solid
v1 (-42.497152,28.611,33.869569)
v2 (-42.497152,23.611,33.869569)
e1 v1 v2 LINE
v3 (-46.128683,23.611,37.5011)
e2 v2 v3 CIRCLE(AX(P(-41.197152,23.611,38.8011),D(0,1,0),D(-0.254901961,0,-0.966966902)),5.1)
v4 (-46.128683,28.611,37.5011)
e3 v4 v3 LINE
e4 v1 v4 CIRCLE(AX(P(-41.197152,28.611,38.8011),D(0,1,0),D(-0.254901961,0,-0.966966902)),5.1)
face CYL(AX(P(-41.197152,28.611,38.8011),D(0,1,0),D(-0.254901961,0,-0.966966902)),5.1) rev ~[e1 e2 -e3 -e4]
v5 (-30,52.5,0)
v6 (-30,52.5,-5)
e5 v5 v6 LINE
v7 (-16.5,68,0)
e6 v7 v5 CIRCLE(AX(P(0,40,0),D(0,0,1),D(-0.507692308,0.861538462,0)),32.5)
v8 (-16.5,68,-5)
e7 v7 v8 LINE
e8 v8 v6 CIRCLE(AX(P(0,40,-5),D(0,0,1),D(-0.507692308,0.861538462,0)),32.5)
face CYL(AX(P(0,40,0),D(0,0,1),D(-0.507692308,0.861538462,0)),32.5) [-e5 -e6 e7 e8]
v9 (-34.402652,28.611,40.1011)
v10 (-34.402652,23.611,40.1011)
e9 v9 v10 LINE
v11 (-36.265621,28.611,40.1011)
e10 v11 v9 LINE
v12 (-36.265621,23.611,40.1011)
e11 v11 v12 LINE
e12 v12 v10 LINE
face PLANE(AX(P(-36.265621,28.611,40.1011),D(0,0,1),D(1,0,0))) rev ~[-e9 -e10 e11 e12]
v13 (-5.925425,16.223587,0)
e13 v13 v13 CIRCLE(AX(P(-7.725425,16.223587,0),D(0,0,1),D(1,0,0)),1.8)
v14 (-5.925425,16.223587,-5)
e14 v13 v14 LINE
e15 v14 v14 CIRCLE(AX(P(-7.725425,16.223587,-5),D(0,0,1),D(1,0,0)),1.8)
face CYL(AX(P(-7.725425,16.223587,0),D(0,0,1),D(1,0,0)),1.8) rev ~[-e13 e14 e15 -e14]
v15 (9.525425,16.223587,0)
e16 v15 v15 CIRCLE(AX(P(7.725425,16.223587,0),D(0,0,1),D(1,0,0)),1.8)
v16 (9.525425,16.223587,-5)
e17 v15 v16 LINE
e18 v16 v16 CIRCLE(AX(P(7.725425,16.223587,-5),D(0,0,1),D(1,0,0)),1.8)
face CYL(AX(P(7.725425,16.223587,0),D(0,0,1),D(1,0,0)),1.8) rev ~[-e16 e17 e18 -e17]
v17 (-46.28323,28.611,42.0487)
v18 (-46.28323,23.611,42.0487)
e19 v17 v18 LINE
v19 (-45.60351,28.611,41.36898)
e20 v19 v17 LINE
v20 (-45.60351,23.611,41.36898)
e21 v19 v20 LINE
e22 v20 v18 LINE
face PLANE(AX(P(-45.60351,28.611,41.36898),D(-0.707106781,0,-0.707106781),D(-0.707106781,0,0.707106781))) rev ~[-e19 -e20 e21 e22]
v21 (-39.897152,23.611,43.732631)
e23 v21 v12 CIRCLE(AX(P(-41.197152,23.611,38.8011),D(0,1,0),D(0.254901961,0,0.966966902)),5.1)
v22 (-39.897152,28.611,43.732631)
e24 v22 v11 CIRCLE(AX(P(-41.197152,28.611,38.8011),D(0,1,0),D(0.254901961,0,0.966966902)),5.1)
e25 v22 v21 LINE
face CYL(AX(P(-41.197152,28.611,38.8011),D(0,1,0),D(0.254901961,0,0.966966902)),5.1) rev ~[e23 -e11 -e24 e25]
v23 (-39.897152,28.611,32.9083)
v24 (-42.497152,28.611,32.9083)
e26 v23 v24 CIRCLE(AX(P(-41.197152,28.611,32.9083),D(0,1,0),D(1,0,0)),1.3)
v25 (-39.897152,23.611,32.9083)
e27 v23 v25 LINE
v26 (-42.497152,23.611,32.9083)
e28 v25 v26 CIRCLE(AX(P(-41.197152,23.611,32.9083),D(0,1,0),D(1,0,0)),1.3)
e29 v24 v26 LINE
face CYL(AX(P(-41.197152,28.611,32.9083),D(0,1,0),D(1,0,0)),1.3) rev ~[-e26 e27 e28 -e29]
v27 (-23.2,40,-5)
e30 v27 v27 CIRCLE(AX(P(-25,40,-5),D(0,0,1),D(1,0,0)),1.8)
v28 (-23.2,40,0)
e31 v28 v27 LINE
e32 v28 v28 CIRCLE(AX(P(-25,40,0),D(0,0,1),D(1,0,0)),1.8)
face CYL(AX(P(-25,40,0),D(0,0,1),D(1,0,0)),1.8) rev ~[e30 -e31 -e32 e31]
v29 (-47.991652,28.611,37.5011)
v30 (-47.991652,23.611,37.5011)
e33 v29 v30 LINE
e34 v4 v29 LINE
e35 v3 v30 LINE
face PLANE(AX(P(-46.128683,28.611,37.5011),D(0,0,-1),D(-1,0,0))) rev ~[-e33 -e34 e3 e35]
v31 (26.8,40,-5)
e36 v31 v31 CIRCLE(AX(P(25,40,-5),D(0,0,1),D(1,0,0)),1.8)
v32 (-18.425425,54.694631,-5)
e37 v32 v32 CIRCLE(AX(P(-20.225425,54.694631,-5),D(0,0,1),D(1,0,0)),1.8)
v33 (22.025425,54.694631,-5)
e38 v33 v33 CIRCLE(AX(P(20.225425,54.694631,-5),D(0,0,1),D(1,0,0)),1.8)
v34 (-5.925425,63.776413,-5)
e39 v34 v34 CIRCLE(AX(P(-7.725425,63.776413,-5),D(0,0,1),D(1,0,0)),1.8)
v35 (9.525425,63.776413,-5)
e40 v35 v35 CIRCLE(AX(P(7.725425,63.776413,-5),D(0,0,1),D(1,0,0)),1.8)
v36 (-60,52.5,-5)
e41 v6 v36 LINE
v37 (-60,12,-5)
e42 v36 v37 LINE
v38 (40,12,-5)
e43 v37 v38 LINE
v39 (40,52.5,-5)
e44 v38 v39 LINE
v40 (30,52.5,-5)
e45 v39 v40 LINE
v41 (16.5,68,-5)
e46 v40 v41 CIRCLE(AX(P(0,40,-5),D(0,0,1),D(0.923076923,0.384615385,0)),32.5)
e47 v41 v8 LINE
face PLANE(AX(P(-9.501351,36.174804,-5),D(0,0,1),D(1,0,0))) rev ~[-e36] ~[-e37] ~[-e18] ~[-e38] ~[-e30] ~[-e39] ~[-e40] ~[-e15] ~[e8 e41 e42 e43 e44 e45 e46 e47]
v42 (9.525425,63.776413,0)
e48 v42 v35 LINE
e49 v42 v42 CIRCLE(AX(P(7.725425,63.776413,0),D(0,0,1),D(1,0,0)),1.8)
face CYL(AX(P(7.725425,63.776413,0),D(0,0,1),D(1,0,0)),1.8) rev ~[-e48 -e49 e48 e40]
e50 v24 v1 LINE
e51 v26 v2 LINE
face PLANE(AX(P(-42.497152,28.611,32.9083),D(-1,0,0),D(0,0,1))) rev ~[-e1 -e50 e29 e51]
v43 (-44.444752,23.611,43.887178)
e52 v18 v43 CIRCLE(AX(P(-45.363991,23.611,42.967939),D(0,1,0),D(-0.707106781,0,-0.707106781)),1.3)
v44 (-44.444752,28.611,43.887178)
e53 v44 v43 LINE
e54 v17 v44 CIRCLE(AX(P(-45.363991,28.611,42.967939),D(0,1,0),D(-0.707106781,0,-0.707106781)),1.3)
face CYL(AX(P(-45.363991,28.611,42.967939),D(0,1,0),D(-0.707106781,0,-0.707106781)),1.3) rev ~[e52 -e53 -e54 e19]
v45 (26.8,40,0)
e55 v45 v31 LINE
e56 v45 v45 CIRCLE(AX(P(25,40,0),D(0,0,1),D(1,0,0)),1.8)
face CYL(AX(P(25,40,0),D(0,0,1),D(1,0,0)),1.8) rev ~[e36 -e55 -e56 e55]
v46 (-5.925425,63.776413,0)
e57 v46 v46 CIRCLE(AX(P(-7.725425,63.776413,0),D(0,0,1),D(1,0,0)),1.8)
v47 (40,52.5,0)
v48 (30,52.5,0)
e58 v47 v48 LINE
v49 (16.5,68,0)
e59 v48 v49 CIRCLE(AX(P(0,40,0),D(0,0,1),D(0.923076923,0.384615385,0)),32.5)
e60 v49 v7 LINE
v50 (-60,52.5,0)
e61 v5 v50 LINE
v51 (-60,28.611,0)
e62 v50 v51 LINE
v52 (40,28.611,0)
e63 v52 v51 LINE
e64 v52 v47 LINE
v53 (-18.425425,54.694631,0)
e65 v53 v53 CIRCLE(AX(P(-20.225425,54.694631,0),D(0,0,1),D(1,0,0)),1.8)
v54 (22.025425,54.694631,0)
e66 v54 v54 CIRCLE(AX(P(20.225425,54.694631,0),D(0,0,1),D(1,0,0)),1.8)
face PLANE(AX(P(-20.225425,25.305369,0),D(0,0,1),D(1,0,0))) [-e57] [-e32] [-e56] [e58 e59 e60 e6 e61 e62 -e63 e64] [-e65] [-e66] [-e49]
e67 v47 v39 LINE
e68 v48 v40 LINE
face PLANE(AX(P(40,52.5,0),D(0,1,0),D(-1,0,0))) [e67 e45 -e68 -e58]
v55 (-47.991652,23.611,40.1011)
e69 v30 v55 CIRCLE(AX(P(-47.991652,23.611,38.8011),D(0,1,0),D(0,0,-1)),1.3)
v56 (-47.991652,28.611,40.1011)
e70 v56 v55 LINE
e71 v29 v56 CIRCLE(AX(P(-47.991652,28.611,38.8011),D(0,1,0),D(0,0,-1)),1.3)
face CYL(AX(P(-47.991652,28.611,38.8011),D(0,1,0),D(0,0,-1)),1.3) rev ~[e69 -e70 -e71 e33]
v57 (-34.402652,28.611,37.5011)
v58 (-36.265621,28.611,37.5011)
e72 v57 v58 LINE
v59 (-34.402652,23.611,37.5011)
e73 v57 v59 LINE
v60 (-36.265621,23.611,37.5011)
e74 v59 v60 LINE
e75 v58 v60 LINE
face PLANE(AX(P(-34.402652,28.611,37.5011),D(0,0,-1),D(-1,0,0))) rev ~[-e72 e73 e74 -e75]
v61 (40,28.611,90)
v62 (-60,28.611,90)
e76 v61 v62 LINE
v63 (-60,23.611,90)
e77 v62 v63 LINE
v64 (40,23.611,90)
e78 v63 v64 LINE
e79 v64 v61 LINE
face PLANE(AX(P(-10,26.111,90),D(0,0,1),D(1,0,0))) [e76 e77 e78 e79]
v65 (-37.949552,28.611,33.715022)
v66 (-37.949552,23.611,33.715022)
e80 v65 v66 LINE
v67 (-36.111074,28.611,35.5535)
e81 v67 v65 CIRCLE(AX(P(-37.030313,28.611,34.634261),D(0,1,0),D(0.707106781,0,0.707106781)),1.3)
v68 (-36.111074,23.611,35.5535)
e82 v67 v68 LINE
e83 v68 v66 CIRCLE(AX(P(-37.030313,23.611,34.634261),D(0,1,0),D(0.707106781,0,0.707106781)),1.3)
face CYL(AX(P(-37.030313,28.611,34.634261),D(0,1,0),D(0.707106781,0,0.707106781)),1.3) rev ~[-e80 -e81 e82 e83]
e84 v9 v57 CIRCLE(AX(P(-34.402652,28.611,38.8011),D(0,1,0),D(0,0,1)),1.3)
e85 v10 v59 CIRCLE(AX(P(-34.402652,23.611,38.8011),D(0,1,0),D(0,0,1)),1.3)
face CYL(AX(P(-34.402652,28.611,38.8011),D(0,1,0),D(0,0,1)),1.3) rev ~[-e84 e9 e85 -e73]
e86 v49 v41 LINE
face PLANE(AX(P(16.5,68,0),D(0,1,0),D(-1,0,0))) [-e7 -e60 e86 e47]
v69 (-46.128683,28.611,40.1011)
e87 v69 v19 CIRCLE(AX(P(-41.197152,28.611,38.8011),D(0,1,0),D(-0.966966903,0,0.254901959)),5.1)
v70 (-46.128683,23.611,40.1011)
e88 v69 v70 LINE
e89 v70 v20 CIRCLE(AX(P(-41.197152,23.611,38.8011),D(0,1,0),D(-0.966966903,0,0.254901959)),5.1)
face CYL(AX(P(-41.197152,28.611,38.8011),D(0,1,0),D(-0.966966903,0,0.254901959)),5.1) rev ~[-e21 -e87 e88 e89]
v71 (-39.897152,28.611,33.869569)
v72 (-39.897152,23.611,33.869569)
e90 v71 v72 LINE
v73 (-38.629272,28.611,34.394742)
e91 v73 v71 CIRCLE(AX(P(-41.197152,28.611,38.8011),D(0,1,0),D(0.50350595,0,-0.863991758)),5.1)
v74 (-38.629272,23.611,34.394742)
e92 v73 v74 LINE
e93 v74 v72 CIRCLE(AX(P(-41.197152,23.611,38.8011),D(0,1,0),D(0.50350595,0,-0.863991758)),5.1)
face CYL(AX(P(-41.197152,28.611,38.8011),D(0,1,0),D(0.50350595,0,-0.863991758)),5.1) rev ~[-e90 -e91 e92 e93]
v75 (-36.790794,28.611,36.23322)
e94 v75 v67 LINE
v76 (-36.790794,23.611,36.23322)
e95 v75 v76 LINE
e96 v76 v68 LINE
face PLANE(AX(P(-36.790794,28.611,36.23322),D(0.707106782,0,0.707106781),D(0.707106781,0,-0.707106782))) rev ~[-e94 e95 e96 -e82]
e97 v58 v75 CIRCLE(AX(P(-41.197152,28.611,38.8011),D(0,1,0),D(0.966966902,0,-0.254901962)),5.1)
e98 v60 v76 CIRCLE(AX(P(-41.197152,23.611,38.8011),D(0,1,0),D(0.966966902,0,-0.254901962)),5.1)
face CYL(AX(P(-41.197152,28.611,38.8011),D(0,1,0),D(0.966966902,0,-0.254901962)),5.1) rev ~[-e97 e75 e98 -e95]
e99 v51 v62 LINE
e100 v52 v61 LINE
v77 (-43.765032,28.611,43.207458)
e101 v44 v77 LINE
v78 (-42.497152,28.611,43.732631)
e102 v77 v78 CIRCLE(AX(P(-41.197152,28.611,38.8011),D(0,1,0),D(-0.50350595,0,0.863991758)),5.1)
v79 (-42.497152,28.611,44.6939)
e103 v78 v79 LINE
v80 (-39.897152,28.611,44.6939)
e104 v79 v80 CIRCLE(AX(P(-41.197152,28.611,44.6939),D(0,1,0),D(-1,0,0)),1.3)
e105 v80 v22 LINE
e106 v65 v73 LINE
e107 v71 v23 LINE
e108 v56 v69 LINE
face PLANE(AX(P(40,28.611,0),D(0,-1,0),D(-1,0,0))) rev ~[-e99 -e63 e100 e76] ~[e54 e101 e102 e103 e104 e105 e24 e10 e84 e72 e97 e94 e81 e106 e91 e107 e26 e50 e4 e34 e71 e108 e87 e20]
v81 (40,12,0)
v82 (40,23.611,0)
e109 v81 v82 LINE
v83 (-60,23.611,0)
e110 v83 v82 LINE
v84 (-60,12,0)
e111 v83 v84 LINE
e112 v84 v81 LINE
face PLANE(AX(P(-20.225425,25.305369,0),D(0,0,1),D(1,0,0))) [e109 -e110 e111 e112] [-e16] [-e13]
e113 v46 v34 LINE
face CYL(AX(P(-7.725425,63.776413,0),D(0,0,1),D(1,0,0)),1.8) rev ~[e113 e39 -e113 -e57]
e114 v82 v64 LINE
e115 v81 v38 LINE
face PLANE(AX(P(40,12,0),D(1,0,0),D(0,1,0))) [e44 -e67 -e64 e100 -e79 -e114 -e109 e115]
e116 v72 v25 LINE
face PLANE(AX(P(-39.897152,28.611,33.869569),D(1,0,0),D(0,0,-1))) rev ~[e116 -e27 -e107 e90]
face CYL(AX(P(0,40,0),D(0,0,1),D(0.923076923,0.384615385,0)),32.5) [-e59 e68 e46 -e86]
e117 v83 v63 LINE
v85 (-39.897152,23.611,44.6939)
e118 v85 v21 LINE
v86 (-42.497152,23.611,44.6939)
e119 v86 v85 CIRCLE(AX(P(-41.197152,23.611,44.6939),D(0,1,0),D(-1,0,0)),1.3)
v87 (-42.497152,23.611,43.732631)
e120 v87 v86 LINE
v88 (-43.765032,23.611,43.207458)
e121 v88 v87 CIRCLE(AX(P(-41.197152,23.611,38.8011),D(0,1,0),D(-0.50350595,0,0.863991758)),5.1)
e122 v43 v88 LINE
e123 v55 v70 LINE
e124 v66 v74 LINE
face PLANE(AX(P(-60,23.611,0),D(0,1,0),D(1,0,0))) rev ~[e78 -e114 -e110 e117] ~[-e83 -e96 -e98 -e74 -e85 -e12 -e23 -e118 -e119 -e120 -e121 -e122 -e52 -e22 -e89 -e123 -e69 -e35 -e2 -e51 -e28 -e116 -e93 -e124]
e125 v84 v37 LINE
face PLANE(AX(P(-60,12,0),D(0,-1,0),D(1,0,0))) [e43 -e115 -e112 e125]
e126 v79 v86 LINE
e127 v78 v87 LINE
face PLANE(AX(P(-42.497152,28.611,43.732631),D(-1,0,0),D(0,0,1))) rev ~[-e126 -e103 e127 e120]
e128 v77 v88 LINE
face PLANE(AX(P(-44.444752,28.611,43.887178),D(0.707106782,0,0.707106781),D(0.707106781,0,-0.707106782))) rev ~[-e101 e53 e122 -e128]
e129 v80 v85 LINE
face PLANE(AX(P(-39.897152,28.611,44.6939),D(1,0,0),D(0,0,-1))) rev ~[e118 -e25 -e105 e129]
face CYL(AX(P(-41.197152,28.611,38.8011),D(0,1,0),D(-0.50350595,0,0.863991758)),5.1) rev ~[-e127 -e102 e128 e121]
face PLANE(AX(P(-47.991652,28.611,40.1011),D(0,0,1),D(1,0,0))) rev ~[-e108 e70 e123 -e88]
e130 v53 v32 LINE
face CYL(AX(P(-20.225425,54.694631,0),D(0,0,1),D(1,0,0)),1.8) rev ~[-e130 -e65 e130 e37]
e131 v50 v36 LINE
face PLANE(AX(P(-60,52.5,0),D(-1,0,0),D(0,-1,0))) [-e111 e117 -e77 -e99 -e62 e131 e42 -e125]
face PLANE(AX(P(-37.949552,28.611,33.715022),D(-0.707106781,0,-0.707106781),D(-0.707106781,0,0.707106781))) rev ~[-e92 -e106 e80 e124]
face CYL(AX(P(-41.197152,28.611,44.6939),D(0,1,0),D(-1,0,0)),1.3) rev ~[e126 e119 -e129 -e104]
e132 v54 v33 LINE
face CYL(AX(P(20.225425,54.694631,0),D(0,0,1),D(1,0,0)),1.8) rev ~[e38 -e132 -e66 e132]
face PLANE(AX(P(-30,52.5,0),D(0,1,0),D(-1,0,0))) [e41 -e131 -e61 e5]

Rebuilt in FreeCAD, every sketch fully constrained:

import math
import FreeCAD as App
import Part
import Sketcher
Q = App.Units.Quantity


def add_polygon(sketch, points):
    """Adds a closed chain of lines whose ends are joined by coincident constraints."""
    first, n = sketch.GeometryCount, len(points)
    for a, b in zip(points, points[1:] + points[:1]):
        sketch.addGeometry(Part.LineSegment(App.Vector(*a, 0), App.Vector(*b, 0)), False)
    for i in range(n):
        sketch.addConstraint(Sketcher.Constraint("Coincident", first + i, 2, first + (i + 1) % n, 1))

doc = App.newDocument("Part")
body = doc.addObject("PartDesign::Body", "Body")

# Sketch on XY plane
sketch1 = body.newObject("Sketcher::SketchObject", "Sketch")
sketch1.AttachmentSupport = (doc.getObject("XY_Plane"), [""])
sketch1.MapMode = "FlatFace"
sketch1.addGeometry(Part.ArcOfCircle(Part.Circle(App.Vector(0, 40, 0), App.Vector(0, 0, 1), 32.5), math.radians(22.619865), math.radians(59.489763)), False)
sketch1.addGeometry(Part.LineSegment(App.Vector(16.5, 68, 0), App.Vector(-16.5, 68, 0)), False)
sketch1.addGeometry(Part.ArcOfCircle(Part.Circle(App.Vector(0, 40, 0), App.Vector(0, 0, 1), 32.5), math.radians(120.510237), math.radians(157.380135)), False)
sketch1.addGeometry(Part.LineSegment(App.Vector(-30, 52.5, 0), App.Vector(-60, 52.5, 0)), False)
sketch1.addGeometry(Part.LineSegment(App.Vector(-60, 52.5, 0), App.Vector(-60, 12, 0)), False)
sketch1.addGeometry(Part.LineSegment(App.Vector(-60, 12, 0), App.Vector(40, 12, 0)), False)
sketch1.addGeometry(Part.LineSegment(App.Vector(40, 12, 0), App.Vector(40, 52.5, 0)), False)
sketch1.addGeometry(Part.LineSegment(App.Vector(40, 52.5, 0), App.Vector(30, 52.5, 0)), False)
sketch1.addGeometry(Part.Circle(App.Vector(-20.225425, 25.305369, 0), App.Vector(0, 0, 1), 1.8), False)
sketch1.addGeometry(Part.Circle(App.Vector(-7.725425, 16.223587, 0), App.Vector(0, 0, 1), 1.8), False)
sketch1.addGeometry(Part.Circle(App.Vector(7.725425, 16.223587, 0), App.Vector(0, 0, 1), 1.8), False)
sketch1.addGeometry(Part.Circle(App.Vector(20.225425, 25.305369, 0), App.Vector(0, 0, 1), 1.8), False)
sketch1.addGeometry(Part.Circle(App.Vector(-25, 40, 0), App.Vector(0, 0, 1), 1.8), False)
sketch1.addGeometry(Part.Circle(App.Vector(-20.225425, 54.694631, 0), App.Vector(0, 0, 1), 1.8), False)
sketch1.addGeometry(Part.Circle(App.Vector(-7.725425, 63.776413, 0), App.Vector(0, 0, 1), 1.8), False)
sketch1.addGeometry(Part.Circle(App.Vector(25, 40, 0), App.Vector(0, 0, 1), 1.8), False)
sketch1.addGeometry(Part.Circle(App.Vector(7.725425, 63.776413, 0), App.Vector(0, 0, 1), 1.8), False)
sketch1.addGeometry(Part.Circle(App.Vector(20.225425, 54.694631, 0), App.Vector(0, 0, 1), 1.8), False)
sketch1.addConstraint(Sketcher.Constraint("Coincident", 0, 2, 1, 1))
sketch1.addConstraint(Sketcher.Constraint("Coincident", 1, 2, 2, 1))
sketch1.addConstraint(Sketcher.Constraint("Coincident", 2, 2, 3, 1))
sketch1.addConstraint(Sketcher.Constraint("Coincident", 3, 2, 4, 1))
sketch1.addConstraint(Sketcher.Constraint("Coincident", 4, 2, 5, 1))
sketch1.addConstraint(Sketcher.Constraint("Coincident", 5, 2, 6, 1))
sketch1.addConstraint(Sketcher.Constraint("Coincident", 6, 2, 7, 1))
sketch1.addConstraint(Sketcher.Constraint("Coincident", 7, 2, 0, 1))
sketch1.addConstraint(Sketcher.Constraint("Horizontal", 1))
sketch1.addConstraint(Sketcher.Constraint("Horizontal", 3))
sketch1.addConstraint(Sketcher.Constraint("Vertical", 4))
sketch1.addConstraint(Sketcher.Constraint("Horizontal", 5))
sketch1.addConstraint(Sketcher.Constraint("Vertical", 6))
sketch1.addConstraint(Sketcher.Constraint("Horizontal", 7))
sketch1.addConstraint(Sketcher.Constraint("Coincident", 2, 3, 0, 3))
sketch1.addConstraint(Sketcher.Constraint("Equal", 0, 2))
sketch1.addConstraint(Sketcher.Constraint("Equal", 8, 9))
sketch1.addConstraint(Sketcher.Constraint("Equal", 9, 10))
sketch1.addConstraint(Sketcher.Constraint("Equal", 10, 11))
sketch1.addConstraint(Sketcher.Constraint("Equal", 11, 12))
sketch1.addConstraint(Sketcher.Constraint("Equal", 12, 13))
sketch1.addConstraint(Sketcher.Constraint("Equal", 13, 14))
sketch1.addConstraint(Sketcher.Constraint("Equal", 14, 15))
sketch1.addConstraint(Sketcher.Constraint("Equal", 15, 16))
sketch1.addConstraint(Sketcher.Constraint("Equal", 16, 17))
sketch1.addConstraint(Sketcher.Constraint("Symmetric", 9, 3, 10, 3, -2))
sketch1.addConstraint(Sketcher.Constraint("Symmetric", 8, 3, 11, 3, -2))
sketch1.addConstraint(Sketcher.Constraint("Symmetric", 12, 3, 15, 3, -2))
sketch1.addConstraint(Sketcher.Constraint("Symmetric", 14, 3, 16, 3, -2))
sketch1.addConstraint(Sketcher.Constraint("Symmetric", 13, 3, 17, 3, -2))
sketch1.addConstraint(Sketcher.Constraint("Symmetric", 2, 2, 7, 2, -2))
sketch1.addConstraint(Sketcher.Constraint("Horizontal", 2, 3, 12, 3))
sketch1.addConstraint(Sketcher.Constraint("Vertical", 8, 3, 13, 3))
sketch1.addConstraint(Sketcher.Constraint("Vertical", 9, 3, 14, 3))
sketch1.addConstraint(Sketcher.Constraint("Diameter", 8, Q("3.6 mm")))
sketch1.addConstraint(Sketcher.Constraint("Radius", 0, Q("32.5 mm")))
sketch1.addConstraint(Sketcher.Constraint("DistanceX", 1, 2, 1, 1, Q("33 mm")))
sketch1.addConstraint(Sketcher.Constraint("DistanceX", 3, 2, 3, 1, Q("30 mm")))
sketch1.addConstraint(Sketcher.Constraint("DistanceX", 5, 1, 5, 2, Q("100 mm")))
sketch1.addConstraint(Sketcher.Constraint("DistanceX", 7, 2, 7, 1, Q("10 mm")))
sketch1.addConstraint(Sketcher.Constraint("DistanceY", 4, 2, 4, 1, Q("40.5 mm")))
sketch1.addConstraint(Sketcher.Constraint("DistanceY", -1, 1, 0, 3, Q("40 mm")))
sketch1.addConstraint(Sketcher.Constraint("DistanceX", 12, 3, -1, 1, Q("25 mm")))
sketch1.addConstraint(Sketcher.Constraint("DistanceX", 8, 3, 9, 3, Q("12.5 mm")))
sketch1.addConstraint(Sketcher.Constraint("DistanceY", -1, 1, 8, 3, Q("25.305369 mm")))
sketch1.addConstraint(Sketcher.Constraint("DistanceY", -1, 1, 13, 3, Q("54.694631 mm")))
sketch1.addConstraint(Sketcher.Constraint("DistanceY", 9, 3, 8, 3, Q("9.081782 mm")))
sketch1.addConstraint(Sketcher.Constraint("DistanceX", 9, 3, 10, 3, Q("15.45085 mm")))
sketch1.addConstraint(Sketcher.Constraint("DistanceY", 13, 3, 14, 3, Q("9.081782 mm")))
pad1 = body.newObject("PartDesign::Pad", "Pad")
pad1.Profile = sketch1
pad1.Length = 5
pad1.Reversed = True

# Sketch on XY plane
sketch2 = body.newObject("Sketcher::SketchObject", "Sketch001")
sketch2.AttachmentSupport = (doc.getObject("XY_Plane"), [""])
sketch2.MapMode = "FlatFace"
sketch2.addGeometry(Part.Circle(App.Vector(-20.225425, 25.305369, 0), App.Vector(0, 0, 1), 1.8), False)
sketch2.addGeometry(Part.Circle(App.Vector(20.225425, 25.305369, 0), App.Vector(0, 0, 1), 1.8), False)
sketch2.addConstraint(Sketcher.Constraint("Equal", 0, 1))
sketch2.addConstraint(Sketcher.Constraint("Symmetric", 0, 3, 1, 3, -2))
sketch2.addConstraint(Sketcher.Constraint("Diameter", 0, Q("3.6 mm")))
sketch2.addConstraint(Sketcher.Constraint("DistanceY", -1, 1, 0, 3, Q("25.305369 mm")))
sketch2.addConstraint(Sketcher.Constraint("DistanceX", 0, 3, 1, 3, Q("40.45085 mm")))
pad2 = body.newObject("PartDesign::Pad", "Pad001")
pad2.Profile = sketch2
pad2.Length = 5
pad2.Reversed = True

# Sketch on XY plane
sketch3 = body.newObject("Sketcher::SketchObject", "Sketch002")
sketch3.AttachmentSupport = (doc.getObject("XY_Plane"), [""])
sketch3.MapMode = "FlatFace"
add_polygon(sketch3, [(40, 23.611), (40, 28.611), (-60, 28.611), (-60, 23.611)])  # lines 0-3
sketch3.addConstraint(Sketcher.Constraint("Vertical", 0))
sketch3.addConstraint(Sketcher.Constraint("Horizontal", 1))
sketch3.addConstraint(Sketcher.Constraint("Vertical", 2))
sketch3.addConstraint(Sketcher.Constraint("Horizontal", 3))
sketch3.addConstraint(Sketcher.Constraint("DistanceX", 1, 2, 1, 1, Q("100 mm")))
sketch3.addConstraint(Sketcher.Constraint("DistanceY", 0, 1, 0, 2, Q("5 mm")))
sketch3.addConstraint(Sketcher.Constraint("DistanceX", -1, 1, 0, 2, Q("40 mm")))
sketch3.addConstraint(Sketcher.Constraint("DistanceY", -1, 1, 0, 2, Q("28.611 mm")))
pad3 = body.newObject("PartDesign::Pad", "Pad002")
pad3.Profile = sketch3
pad3.Length = 90

# Sketch on XZ plane
sketch4 = body.newObject("Sketcher::SketchObject", "Sketch003")
sketch4.AttachmentSupport = (doc.getObject("XZ_Plane"), [""])
sketch4.MapMode = "FlatFace"
sketch4.AttachmentOffset = App.Placement(App.Vector(0, 0, -28.611), App.Rotation())
sketch4.addGeometry(Part.LineSegment(App.Vector(-36.502474, 39.8011, 0), App.Vector(-34.402652, 39.8011, 0)), False)
sketch4.addGeometry(Part.ArcOfCircle(Part.Circle(App.Vector(-34.402652, 38.8011, 0), App.Vector(0, 0, 1), 1), math.radians(-90), math.radians(90)), False)
sketch4.addGeometry(Part.LineSegment(App.Vector(-34.402652, 37.8011, 0), App.Vector(-36.502474, 37.8011, 0)), False)
sketch4.addGeometry(Part.ArcOfCircle(Part.Circle(App.Vector(-41.197152, 38.8011, 0), App.Vector(0, 0, 1), 4.8), math.radians(-32.975301), math.radians(-12.024699)), False)
sketch4.addGeometry(Part.LineSegment(App.Vector(-37.170407, 36.188568, 0), App.Vector(-36.323206, 35.341368, 0)), False)
sketch4.addGeometry(Part.ArcOfCircle(Part.Circle(App.Vector(-37.030313, 34.634261, 0), App.Vector(0, 0, 1), 1), math.radians(-135), math.radians(45)), False)
sketch4.addGeometry(Part.LineSegment(App.Vector(-37.73742, 33.927154, 0), App.Vector(-38.58462, 34.774355, 0)), False)
sketch4.addGeometry(Part.ArcOfCircle(Part.Circle(App.Vector(-41.197152, 38.8011, 0), App.Vector(0, 0, 1), 4.8), math.radians(-77.975301), math.radians(-57.024699)), False)
sketch4.addGeometry(Part.LineSegment(App.Vector(-40.197152, 34.106422, 0), App.Vector(-40.197152, 32.9083, 0)), False)
sketch4.addGeometry(Part.ArcOfCircle(Part.Circle(App.Vector(-41.197152, 32.9083, 0), App.Vector(0, 0, 1), 1), math.radians(180), math.radians(360)), False)
sketch4.addGeometry(Part.LineSegment(App.Vector(-42.197152, 32.9083, 0), App.Vector(-42.197152, 34.106422, 0)), False)
sketch4.addGeometry(Part.ArcOfCircle(Part.Circle(App.Vector(-41.197152, 38.8011, 0), App.Vector(0, 0, 1), 4.8), math.radians(-167.975301), math.radians(-102.024699)), False)
sketch4.addGeometry(Part.LineSegment(App.Vector(-45.89183, 37.8011, 0), App.Vector(-47.991652, 37.8011, 0)), False)
sketch4.addGeometry(Part.ArcOfCircle(Part.Circle(App.Vector(-47.991652, 38.8011, 0), App.Vector(0, 0, 1), 1), math.radians(90), math.radians(270)), False)
sketch4.addGeometry(Part.LineSegment(App.Vector(-47.991652, 39.8011, 0), App.Vector(-45.89183, 39.8011, 0)), False)
sketch4.addGeometry(Part.ArcOfCircle(Part.Circle(App.Vector(-41.197152, 38.8011, 0), App.Vector(0, 0, 1), 4.8), math.radians(147.024699), math.radians(167.975301)), False)
sketch4.addGeometry(Part.LineSegment(App.Vector(-45.223897, 41.413632, 0), App.Vector(-46.071098, 42.260832, 0)), False)
sketch4.addGeometry(Part.ArcOfCircle(Part.Circle(App.Vector(-45.363991, 42.967939, 0), App.Vector(0, 0, 1), 1), math.radians(45), math.radians(225)), False)
sketch4.addGeometry(Part.LineSegment(App.Vector(-44.656884, 43.675046, 0), App.Vector(-43.809684, 42.827845, 0)), False)
sketch4.addGeometry(Part.ArcOfCircle(Part.Circle(App.Vector(-41.197152, 38.8011, 0), App.Vector(0, 0, 1), 4.8), math.radians(102.024699), math.radians(122.975301)), False)
sketch4.addGeometry(Part.LineSegment(App.Vector(-42.197152, 43.495778, 0), App.Vector(-42.197152, 44.6939, 0)), False)
sketch4.addGeometry(Part.ArcOfCircle(Part.Circle(App.Vector(-41.197152, 44.6939, 0), App.Vector(0, 0, 1), 1), math.radians(0), math.radians(180)), False)
sketch4.addGeometry(Part.LineSegment(App.Vector(-40.197152, 44.6939, 0), App.Vector(-40.197152, 43.495778, 0)), False)
sketch4.addGeometry(Part.ArcOfCircle(Part.Circle(App.Vector(-41.197152, 38.8011, 0), App.Vector(0, 0, 1), 4.8), math.radians(12.024699), math.radians(77.975301)), False)
sketch4.addConstraint(Sketcher.Constraint("Tangent", 0, 2, 1, 2))
sketch4.addConstraint(Sketcher.Constraint("Tangent", 1, 1, 2, 1))
sketch4.addConstraint(Sketcher.Constraint("Coincident", 2, 2, 3, 2))
sketch4.addConstraint(Sketcher.Constraint("Coincident", 3, 1, 4, 1))
sketch4.addConstraint(Sketcher.Constraint("Tangent", 4, 2, 5, 2))
sketch4.addConstraint(Sketcher.Constraint("Tangent", 5, 1, 6, 1))
sketch4.addConstraint(Sketcher.Constraint("Coincident", 6, 2, 7, 2))
sketch4.addConstraint(Sketcher.Constraint("Coincident", 7, 1, 8, 1))
sketch4.addConstraint(Sketcher.Constraint("Tangent", 8, 2, 9, 2))
sketch4.addConstraint(Sketcher.Constraint("Tangent", 9, 1, 10, 1))
sketch4.addConstraint(Sketcher.Constraint("Coincident", 10, 2, 11, 2))
sketch4.addConstraint(Sketcher.Constraint("Coincident", 11, 1, 12, 1))
sketch4.addConstraint(Sketcher.Constraint("Tangent", 12, 2, 13, 2))
sketch4.addConstraint(Sketcher.Constraint("Tangent", 13, 1, 14, 1))
sketch4.addConstraint(Sketcher.Constraint("Coincident", 14, 2, 15, 2))
sketch4.addConstraint(Sketcher.Constraint("Coincident", 15, 1, 16, 1))
sketch4.addConstraint(Sketcher.Constraint("Tangent", 16, 2, 17, 2))
sketch4.addConstraint(Sketcher.Constraint("Tangent", 17, 1, 18, 1))
sketch4.addConstraint(Sketcher.Constraint("Coincident", 18, 2, 19, 2))
sketch4.addConstraint(Sketcher.Constraint("Coincident", 19, 1, 20, 1))
sketch4.addConstraint(Sketcher.Constraint("Tangent", 20, 2, 21, 2))
sketch4.addConstraint(Sketcher.Constraint("Tangent", 21, 1, 22, 1))
sketch4.addConstraint(Sketcher.Constraint("Coincident", 22, 2, 23, 2))
sketch4.addConstraint(Sketcher.Constraint("Coincident", 23, 1, 0, 1))
sketch4.addConstraint(Sketcher.Constraint("Horizontal", 0))
sketch4.addConstraint(Sketcher.Constraint("Horizontal", 2))
sketch4.addConstraint(Sketcher.Constraint("Vertical", 8))
sketch4.addConstraint(Sketcher.Constraint("Vertical", 10))
sketch4.addConstraint(Sketcher.Constraint("Horizontal", 12))
sketch4.addConstraint(Sketcher.Constraint("Horizontal", 14))
sketch4.addConstraint(Sketcher.Constraint("Vertical", 20))
sketch4.addConstraint(Sketcher.Constraint("Vertical", 22))
sketch4.addConstraint(Sketcher.Constraint("Coincident", 7, 3, 3, 3))
sketch4.addConstraint(Sketcher.Constraint("Coincident", 11, 3, 3, 3))
sketch4.addConstraint(Sketcher.Constraint("Coincident", 15, 3, 3, 3))
sketch4.addConstraint(Sketcher.Constraint("Coincident", 19, 3, 3, 3))
sketch4.addConstraint(Sketcher.Constraint("Coincident", 23, 3, 3, 3))
sketch4.addConstraint(Sketcher.Constraint("Equal", 1, 5))
sketch4.addConstraint(Sketcher.Constraint("Equal", 3, 7))
sketch4.addConstraint(Sketcher.Constraint("Equal", 5, 9))
sketch4.addConstraint(Sketcher.Constraint("Equal", 7, 11))
sketch4.addConstraint(Sketcher.Constraint("Equal", 9, 13))
sketch4.addConstraint(Sketcher.Constraint("Equal", 11, 15))
sketch4.addConstraint(Sketcher.Constraint("Equal", 13, 17))
sketch4.addConstraint(Sketcher.Constraint("Equal", 15, 19))
sketch4.addConstraint(Sketcher.Constraint("Equal", 17, 21))
sketch4.addConstraint(Sketcher.Constraint("Equal", 19, 23))
sketch4.addConstraint(Sketcher.Constraint("Parallel", 4, 6))
sketch4.addConstraint(Sketcher.Constraint("Parallel", 6, 16))
sketch4.addConstraint(Sketcher.Constraint("Parallel", 16, 18))
sketch4.addConstraint(Sketcher.Constraint("Horizontal", 1, 3, 3, 3))
sketch4.addConstraint(Sketcher.Constraint("Horizontal", 11, 3, 13, 3))
sketch4.addConstraint(Sketcher.Constraint("Horizontal", 7, 1, 10, 2))
sketch4.addConstraint(Sketcher.Constraint("Horizontal", 19, 1, 22, 2))
sketch4.addConstraint(Sketcher.Constraint("Equal", 2, 12))
sketch4.addConstraint(Sketcher.Constraint("Equal", 10, 20))
sketch4.addConstraint(Sketcher.Constraint("Equal", 4, 6))
sketch4.addConstraint(Sketcher.Constraint("Equal", 6, 16))
sketch4.addConstraint(Sketcher.Constraint("Equal", 16, 18))
sketch4.addConstraint(Sketcher.Constraint("Radius", 1, Q("1 mm")))
sketch4.addConstraint(Sketcher.Constraint("Radius", 3, Q("4.8 mm")))
sketch4.addConstraint(Sketcher.Constraint("Angle", 4, Q("-45 deg")))
sketch4.addConstraint(Sketcher.Constraint("DistanceY", -1, 1, 1, 3, Q("38.8011 mm")))
sketch4.addConstraint(Sketcher.Constraint("DistanceY", -1, 1, 9, 3, Q("32.9083 mm")))
sketch4.addConstraint(Sketcher.Constraint("DistanceX", 3, 3, 1, 3, Q("6.7945 mm")))
sketch4.addConstraint(Sketcher.Constraint("DistanceX", 3, 1, 4, 2, Q("0.8472 mm")))
sketch4.addConstraint(Sketcher.Constraint("DistanceX", 1, 3, -1, 1, Q("34.402652 mm")))
pocket1 = body.newObject("PartDesign::Pocket", "Pocket")
pocket1.Profile = sketch4
pocket1.Length = 90
pocket1.Reversed = True

# Sketch on XZ plane
sketch5 = body.newObject("Sketcher::SketchObject", "Sketch004")
sketch5.AttachmentSupport = (doc.getObject("XZ_Plane"), [""])
sketch5.MapMode = "FlatFace"
sketch5.AttachmentOffset = App.Placement(App.Vector(0, 0, -28.611), App.Rotation())
sketch5.addGeometry(Part.LineSegment(App.Vector(-37.949552, 33.715022, 0), App.Vector(-38.629272, 34.394742, 0)), False)
sketch5.addGeometry(Part.ArcOfCircle(Part.Circle(App.Vector(-41.197152, 38.8011, 0), App.Vector(0, 0, 1), 5.1), math.radians(-75.232224), math.radians(-59.767776)), False)
sketch5.addGeometry(Part.LineSegment(App.Vector(-39.897152, 33.869569, 0), App.Vector(-39.897152, 32.9083, 0)), False)
sketch5.addGeometry(Part.ArcOfCircle(Part.Circle(App.Vector(-41.197152, 32.9083, 0), App.Vector(0, 0, 1), 1.3), math.radians(180), math.radians(360)), False)
sketch5.addGeometry(Part.LineSegment(App.Vector(-42.497152, 32.9083, 0), App.Vector(-42.497152, 33.869569, 0)), False)
sketch5.addGeometry(Part.ArcOfCircle(Part.Circle(App.Vector(-41.197152, 38.8011, 0), App.Vector(0, 0, 1), 5.1), math.radians(-165.232224), math.radians(-104.767776)), False)
sketch5.addGeometry(Part.LineSegment(App.Vector(-46.128683, 37.5011, 0), App.Vector(-47.991652, 37.5011, 0)), False)
sketch5.addGeometry(Part.ArcOfCircle(Part.Circle(App.Vector(-47.991652, 38.8011, 0), App.Vector(0, 0, 1), 1.3), math.radians(90), math.radians(270)), False)
sketch5.addGeometry(Part.LineSegment(App.Vector(-47.991652, 40.1011, 0), App.Vector(-46.128683, 40.1011, 0)), False)
sketch5.addGeometry(Part.ArcOfCircle(Part.Circle(App.Vector(-41.197152, 38.8011, 0), App.Vector(0, 0, 1), 5.1), math.radians(149.767776), math.radians(165.232224)), False)
sketch5.addGeometry(Part.LineSegment(App.Vector(-45.60351, 41.36898, 0), App.Vector(-46.28323, 42.0487, 0)), False)
sketch5.addGeometry(Part.ArcOfCircle(Part.Circle(App.Vector(-45.363991, 42.967939, 0), App.Vector(0, 0, 1), 1.3), math.radians(45), math.radians(225)), False)
sketch5.addGeometry(Part.LineSegment(App.Vector(-44.444752, 43.887178, 0), App.Vector(-43.765032, 43.207458, 0)), False)
sketch5.addGeometry(Part.ArcOfCircle(Part.Circle(App.Vector(-41.197152, 38.8011, 0), App.Vector(0, 0, 1), 5.1), math.radians(104.767776), math.radians(120.232224)), False)
sketch5.addGeometry(Part.LineSegment(App.Vector(-42.497152, 43.732631, 0), App.Vector(-42.497152, 44.6939, 0)), False)
sketch5.addGeometry(Part.ArcOfCircle(Part.Circle(App.Vector(-41.197152, 44.6939, 0), App.Vector(0, 0, 1), 1.3), math.radians(0), math.radians(180)), False)
sketch5.addGeometry(Part.LineSegment(App.Vector(-39.897152, 44.6939, 0), App.Vector(-39.897152, 43.732631, 0)), False)
sketch5.addGeometry(Part.ArcOfCircle(Part.Circle(App.Vector(-41.197152, 38.8011, 0), App.Vector(0, 0, 1), 5.1), math.radians(14.767776), math.radians(75.232224)), False)
sketch5.addGeometry(Part.LineSegment(App.Vector(-36.265621, 40.1011, 0), App.Vector(-34.402652, 40.1011, 0)), False)
sketch5.addGeometry(Part.ArcOfCircle(Part.Circle(App.Vector(-34.402652, 38.8011, 0), App.Vector(0, 0, 1), 1.3), math.radians(-90), math.radians(90)), False)
sketch5.addGeometry(Part.LineSegment(App.Vector(-34.402652, 37.5011, 0), App.Vector(-36.265621, 37.5011, 0)), False)
sketch5.addGeometry(Part.ArcOfCircle(Part.Circle(App.Vector(-41.197152, 38.8011, 0), App.Vector(0, 0, 1), 5.1), math.radians(-30.232224), math.radians(-14.767776)), False)
sketch5.addGeometry(Part.LineSegment(App.Vector(-36.790794, 36.23322, 0), App.Vector(-36.111074, 35.5535, 0)), False)
sketch5.addGeometry(Part.ArcOfCircle(Part.Circle(App.Vector(-37.030313, 34.634261, 0), App.Vector(0, 0, 1), 1.3), math.radians(-135), math.radians(45)), False)
sketch5.addConstraint(Sketcher.Constraint("Coincident", 0, 2, 1, 2))
sketch5.addConstraint(Sketcher.Constraint("Coincident", 1, 1, 2, 1))
sketch5.addConstraint(Sketcher.Constraint("Tangent", 2, 2, 3, 2))
sketch5.addConstraint(Sketcher.Constraint("Tangent", 3, 1, 4, 1))
sketch5.addConstraint(Sketcher.Constraint("Coincident", 4, 2, 5, 2))
sketch5.addConstraint(Sketcher.Constraint("Coincident", 5, 1, 6, 1))
sketch5.addConstraint(Sketcher.Constraint("Tangent", 6, 2, 7, 2))
sketch5.addConstraint(Sketcher.Constraint("Tangent", 7, 1, 8, 1))
sketch5.addConstraint(Sketcher.Constraint("Coincident", 8, 2, 9, 2))
sketch5.addConstraint(Sketcher.Constraint("Coincident", 9, 1, 10, 1))
sketch5.addConstraint(Sketcher.Constraint("Tangent", 10, 2, 11, 2))
sketch5.addConstraint(Sketcher.Constraint("Tangent", 11, 1, 12, 1))
sketch5.addConstraint(Sketcher.Constraint("Coincident", 12, 2, 13, 2))
sketch5.addConstraint(Sketcher.Constraint("Coincident", 13, 1, 14, 1))
sketch5.addConstraint(Sketcher.Constraint("Tangent", 14, 2, 15, 2))
sketch5.addConstraint(Sketcher.Constraint("Tangent", 15, 1, 16, 1))
sketch5.addConstraint(Sketcher.Constraint("Coincident", 16, 2, 17, 2))
sketch5.addConstraint(Sketcher.Constraint("Coincident", 17, 1, 18, 1))
sketch5.addConstraint(Sketcher.Constraint("Tangent", 18, 2, 19, 2))
sketch5.addConstraint(Sketcher.Constraint("Tangent", 19, 1, 20, 1))
sketch5.addConstraint(Sketcher.Constraint("Coincident", 20, 2, 21, 2))
sketch5.addConstraint(Sketcher.Constraint("Coincident", 21, 1, 22, 1))
sketch5.addConstraint(Sketcher.Constraint("Tangent", 22, 2, 23, 2))
sketch5.addConstraint(Sketcher.Constraint("Tangent", 23, 1, 0, 1))
sketch5.addConstraint(Sketcher.Constraint("Vertical", 2))
sketch5.addConstraint(Sketcher.Constraint("Vertical", 4))
sketch5.addConstraint(Sketcher.Constraint("Horizontal", 6))
sketch5.addConstraint(Sketcher.Constraint("Horizontal", 8))
sketch5.addConstraint(Sketcher.Constraint("Vertical", 14))
sketch5.addConstraint(Sketcher.Constraint("Vertical", 16))
sketch5.addConstraint(Sketcher.Constraint("Horizontal", 18))
sketch5.addConstraint(Sketcher.Constraint("Horizontal", 20))
sketch5.addConstraint(Sketcher.Constraint("Coincident", 5, 3, 1, 3))
sketch5.addConstraint(Sketcher.Constraint("Coincident", 9, 3, 1, 3))
sketch5.addConstraint(Sketcher.Constraint("Coincident", 13, 3, 1, 3))
sketch5.addConstraint(Sketcher.Constraint("Coincident", 17, 3, 1, 3))
sketch5.addConstraint(Sketcher.Constraint("Coincident", 21, 3, 1, 3))
sketch5.addConstraint(Sketcher.Constraint("Equal", 1, 5))
sketch5.addConstraint(Sketcher.Constraint("Equal", 3, 7))
sketch5.addConstraint(Sketcher.Constraint("Equal", 5, 9))
sketch5.addConstraint(Sketcher.Constraint("Equal", 7, 11))
sketch5.addConstraint(Sketcher.Constraint("Equal", 9, 13))
sketch5.addConstraint(Sketcher.Constraint("Equal", 11, 15))
sketch5.addConstraint(Sketcher.Constraint("Equal", 13, 17))
sketch5.addConstraint(Sketcher.Constraint("Equal", 15, 19))
sketch5.addConstraint(Sketcher.Constraint("Equal", 17, 21))
sketch5.addConstraint(Sketcher.Constraint("Equal", 19, 23))
sketch5.addConstraint(Sketcher.Constraint("Parallel", 0, 10))
sketch5.addConstraint(Sketcher.Constraint("Parallel", 10, 12))
sketch5.addConstraint(Sketcher.Constraint("Parallel", 12, 22))
sketch5.addConstraint(Sketcher.Constraint("Horizontal", 5, 3, 7, 3))
sketch5.addConstraint(Sketcher.Constraint("Horizontal", 17, 3, 19, 3))
sketch5.addConstraint(Sketcher.Constraint("Horizontal", 1, 1, 4, 2))
sketch5.addConstraint(Sketcher.Constraint("Horizontal", 13, 1, 16, 2))
sketch5.addConstraint(Sketcher.Constraint("Equal", 8, 18))
sketch5.addConstraint(Sketcher.Constraint("Equal", 4, 14))
sketch5.addConstraint(Sketcher.Constraint("Equal", 0, 10))
sketch5.addConstraint(Sketcher.Constraint("Equal", 10, 12))
sketch5.addConstraint(Sketcher.Constraint("Equal", 12, 22))
sketch5.addConstraint(Sketcher.Constraint("Radius", 1, Q("5.1 mm")))
sketch5.addConstraint(Sketcher.Constraint("Radius", 3, Q("1.3 mm")))
sketch5.addConstraint(Sketcher.Constraint("Angle", 0, Q("135 deg")))
sketch5.addConstraint(Sketcher.Constraint("DistanceX", 6, 2, 6, 1, Q("1.862969 mm")))
sketch5.addConstraint(Sketcher.Constraint("DistanceY", 2, 2, 2, 1, Q("0.961269 mm")))
sketch5.addConstraint(Sketcher.Constraint("DistanceY", -1, 1, 1, 3, Q("38.8011 mm")))
sketch5.addConstraint(Sketcher.Constraint("DistanceY", -1, 1, 10, 2, Q("42.0487 mm")))
sketch5.addConstraint(Sketcher.Constraint("DistanceX", 1, 3, -1, 1, Q("41.197152 mm")))
pocket2 = body.newObject("PartDesign::Pocket", "Pocket001")
pocket2.Profile = sketch5
pocket2.Length = 90
pocket2.Reversed = True

doc.recompute()
